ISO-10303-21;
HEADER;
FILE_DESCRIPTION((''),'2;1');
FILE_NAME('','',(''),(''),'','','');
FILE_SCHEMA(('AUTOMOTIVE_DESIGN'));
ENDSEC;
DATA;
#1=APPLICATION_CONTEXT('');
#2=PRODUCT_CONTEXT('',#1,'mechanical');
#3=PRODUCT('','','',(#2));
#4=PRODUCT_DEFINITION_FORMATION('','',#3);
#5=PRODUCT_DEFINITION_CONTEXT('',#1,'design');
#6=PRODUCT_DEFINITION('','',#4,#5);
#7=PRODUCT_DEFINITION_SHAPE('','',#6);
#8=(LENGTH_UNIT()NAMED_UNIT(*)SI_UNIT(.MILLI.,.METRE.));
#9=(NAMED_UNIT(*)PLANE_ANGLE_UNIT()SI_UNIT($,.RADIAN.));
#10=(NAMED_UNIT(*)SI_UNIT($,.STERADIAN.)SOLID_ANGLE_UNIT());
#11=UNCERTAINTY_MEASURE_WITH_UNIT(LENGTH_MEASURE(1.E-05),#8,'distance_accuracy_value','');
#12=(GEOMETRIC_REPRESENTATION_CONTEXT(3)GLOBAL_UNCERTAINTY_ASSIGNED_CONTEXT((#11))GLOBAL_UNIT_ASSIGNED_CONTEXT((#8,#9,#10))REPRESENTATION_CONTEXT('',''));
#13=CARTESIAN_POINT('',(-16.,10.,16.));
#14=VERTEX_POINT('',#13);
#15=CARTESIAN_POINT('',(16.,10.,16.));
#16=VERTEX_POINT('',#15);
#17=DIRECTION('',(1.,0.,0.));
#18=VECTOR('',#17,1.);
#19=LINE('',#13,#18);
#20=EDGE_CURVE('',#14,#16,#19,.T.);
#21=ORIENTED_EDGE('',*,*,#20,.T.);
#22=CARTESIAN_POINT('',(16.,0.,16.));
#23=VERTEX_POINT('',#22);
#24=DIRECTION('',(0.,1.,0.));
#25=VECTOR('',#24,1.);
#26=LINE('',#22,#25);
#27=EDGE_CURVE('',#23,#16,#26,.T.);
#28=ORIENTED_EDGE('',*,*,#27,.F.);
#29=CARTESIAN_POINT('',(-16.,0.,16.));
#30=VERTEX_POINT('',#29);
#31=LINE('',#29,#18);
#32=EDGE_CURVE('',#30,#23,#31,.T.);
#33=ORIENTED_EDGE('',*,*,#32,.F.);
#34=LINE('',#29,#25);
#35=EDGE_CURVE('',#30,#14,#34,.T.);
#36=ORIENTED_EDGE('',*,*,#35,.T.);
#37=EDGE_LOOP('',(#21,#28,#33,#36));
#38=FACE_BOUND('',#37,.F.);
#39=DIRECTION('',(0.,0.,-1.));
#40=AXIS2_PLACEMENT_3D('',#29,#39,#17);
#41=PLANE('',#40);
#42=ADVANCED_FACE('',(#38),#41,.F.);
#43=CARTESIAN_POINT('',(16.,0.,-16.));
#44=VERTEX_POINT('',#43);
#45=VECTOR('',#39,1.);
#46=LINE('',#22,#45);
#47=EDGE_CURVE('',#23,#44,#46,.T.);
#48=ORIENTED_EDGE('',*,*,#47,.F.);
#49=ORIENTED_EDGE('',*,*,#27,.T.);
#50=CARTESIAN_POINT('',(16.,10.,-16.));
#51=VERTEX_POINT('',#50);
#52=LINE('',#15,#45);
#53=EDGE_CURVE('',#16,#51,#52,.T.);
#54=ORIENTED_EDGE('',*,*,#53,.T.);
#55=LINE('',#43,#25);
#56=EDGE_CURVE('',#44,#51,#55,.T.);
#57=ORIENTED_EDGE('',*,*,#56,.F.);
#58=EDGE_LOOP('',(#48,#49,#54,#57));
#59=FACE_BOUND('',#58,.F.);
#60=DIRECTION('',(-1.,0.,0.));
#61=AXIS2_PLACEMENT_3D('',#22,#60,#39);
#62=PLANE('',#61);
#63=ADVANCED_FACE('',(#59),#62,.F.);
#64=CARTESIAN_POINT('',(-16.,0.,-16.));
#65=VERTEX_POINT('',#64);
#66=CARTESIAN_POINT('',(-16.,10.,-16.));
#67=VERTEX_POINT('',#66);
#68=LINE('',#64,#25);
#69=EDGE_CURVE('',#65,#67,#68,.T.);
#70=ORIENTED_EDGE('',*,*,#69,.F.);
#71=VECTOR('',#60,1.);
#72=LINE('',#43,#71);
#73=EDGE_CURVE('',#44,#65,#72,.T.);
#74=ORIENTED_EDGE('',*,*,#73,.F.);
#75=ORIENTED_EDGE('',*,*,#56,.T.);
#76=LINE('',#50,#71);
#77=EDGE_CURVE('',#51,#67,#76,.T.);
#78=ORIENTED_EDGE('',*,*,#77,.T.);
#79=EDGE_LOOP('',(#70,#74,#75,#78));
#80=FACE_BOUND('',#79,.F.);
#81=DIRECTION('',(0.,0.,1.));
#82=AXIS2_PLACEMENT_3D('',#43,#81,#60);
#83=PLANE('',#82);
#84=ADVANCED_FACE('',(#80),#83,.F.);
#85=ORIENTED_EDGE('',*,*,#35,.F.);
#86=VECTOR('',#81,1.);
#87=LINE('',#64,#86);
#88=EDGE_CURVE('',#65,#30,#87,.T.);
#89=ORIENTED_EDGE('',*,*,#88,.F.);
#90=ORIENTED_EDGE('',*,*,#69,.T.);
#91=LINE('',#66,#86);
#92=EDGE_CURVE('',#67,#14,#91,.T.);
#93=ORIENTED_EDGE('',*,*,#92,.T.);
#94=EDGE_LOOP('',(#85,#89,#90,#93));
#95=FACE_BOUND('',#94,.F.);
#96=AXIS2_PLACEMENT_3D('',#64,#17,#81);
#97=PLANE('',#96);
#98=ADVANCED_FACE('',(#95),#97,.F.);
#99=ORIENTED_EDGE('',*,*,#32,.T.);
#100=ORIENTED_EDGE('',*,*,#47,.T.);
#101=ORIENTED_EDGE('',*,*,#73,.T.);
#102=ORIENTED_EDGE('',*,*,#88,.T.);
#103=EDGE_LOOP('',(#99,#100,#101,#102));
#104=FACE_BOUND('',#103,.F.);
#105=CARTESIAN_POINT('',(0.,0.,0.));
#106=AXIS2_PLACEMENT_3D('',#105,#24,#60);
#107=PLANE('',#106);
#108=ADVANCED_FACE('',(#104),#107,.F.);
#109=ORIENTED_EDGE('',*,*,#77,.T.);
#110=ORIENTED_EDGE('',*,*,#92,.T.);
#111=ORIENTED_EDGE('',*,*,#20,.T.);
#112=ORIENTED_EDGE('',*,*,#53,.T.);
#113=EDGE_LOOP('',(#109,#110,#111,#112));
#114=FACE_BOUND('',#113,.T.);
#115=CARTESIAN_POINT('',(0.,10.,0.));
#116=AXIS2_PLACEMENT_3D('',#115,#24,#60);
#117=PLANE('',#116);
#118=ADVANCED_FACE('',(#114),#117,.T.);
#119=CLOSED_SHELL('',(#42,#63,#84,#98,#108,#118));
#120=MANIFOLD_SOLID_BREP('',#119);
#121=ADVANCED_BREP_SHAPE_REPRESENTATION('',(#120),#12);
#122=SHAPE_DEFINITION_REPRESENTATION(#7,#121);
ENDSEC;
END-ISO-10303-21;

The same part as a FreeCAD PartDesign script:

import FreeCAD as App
import Part
import Sketcher
from FreeCAD import Vector

doc = App.newDocument("Part")
body = doc.addObject("PartDesign::Body", "Body")

# Sketch on XZ plane
sketch1 = doc.addObject("Sketcher::SketchObject", "Sketch")
body.addObject(sketch1)
sketch1.AttachmentSupport = (doc.XZ_Plane, [""])
sketch1.MapMode = "FlatFace"
sketch1.addGeometry(Part.LineSegment(Vector(-16, -16, 0), Vector(-16, 16, 0)), False)
sketch1.addGeometry(Part.LineSegment(Vector(-16, 16, 0), Vector(16, 16, 0)), False)
sketch1.addGeometry(Part.LineSegment(Vector(16, 16, 0), Vector(16, -16, 0)), False)
sketch1.addGeometry(Part.LineSegment(Vector(16, -16, 0), Vector(-16, -16, 0)), False)
sketch1.addConstraint(Sketcher.Constraint("Coincident", 0, 2, 1, 1))
sketch1.addConstraint(Sketcher.Constraint("Coincident", 1, 2, 2, 1))
sketch1.addConstraint(Sketcher.Constraint("Coincident", 2, 2, 3, 1))
sketch1.addConstraint(Sketcher.Constraint("Coincident", 3, 2, 0, 1))
sketch1.addConstraint(Sketcher.Constraint("Vertical", 0))
sketch1.addConstraint(Sketcher.Constraint("Horizontal", 1))
sketch1.addConstraint(Sketcher.Constraint("Vertical", 2))
sketch1.addConstraint(Sketcher.Constraint("Horizontal", 3))
sketch1.addConstraint(Sketcher.Constraint("Symmetric", 0, 2, 2, 2, -1, 1))
sketch1.addConstraint(Sketcher.Constraint("Equal", 3, 0))
sketch1.addConstraint(Sketcher.Constraint("DistanceX", 1, 1, 1, 2, 32.0))
pad1 = doc.addObject("PartDesign::Pad", "Pad")
body.addObject(pad1)
pad1.Profile = sketch1
pad1.Length = 10
pad1.Reversed = True

doc.recompute()
